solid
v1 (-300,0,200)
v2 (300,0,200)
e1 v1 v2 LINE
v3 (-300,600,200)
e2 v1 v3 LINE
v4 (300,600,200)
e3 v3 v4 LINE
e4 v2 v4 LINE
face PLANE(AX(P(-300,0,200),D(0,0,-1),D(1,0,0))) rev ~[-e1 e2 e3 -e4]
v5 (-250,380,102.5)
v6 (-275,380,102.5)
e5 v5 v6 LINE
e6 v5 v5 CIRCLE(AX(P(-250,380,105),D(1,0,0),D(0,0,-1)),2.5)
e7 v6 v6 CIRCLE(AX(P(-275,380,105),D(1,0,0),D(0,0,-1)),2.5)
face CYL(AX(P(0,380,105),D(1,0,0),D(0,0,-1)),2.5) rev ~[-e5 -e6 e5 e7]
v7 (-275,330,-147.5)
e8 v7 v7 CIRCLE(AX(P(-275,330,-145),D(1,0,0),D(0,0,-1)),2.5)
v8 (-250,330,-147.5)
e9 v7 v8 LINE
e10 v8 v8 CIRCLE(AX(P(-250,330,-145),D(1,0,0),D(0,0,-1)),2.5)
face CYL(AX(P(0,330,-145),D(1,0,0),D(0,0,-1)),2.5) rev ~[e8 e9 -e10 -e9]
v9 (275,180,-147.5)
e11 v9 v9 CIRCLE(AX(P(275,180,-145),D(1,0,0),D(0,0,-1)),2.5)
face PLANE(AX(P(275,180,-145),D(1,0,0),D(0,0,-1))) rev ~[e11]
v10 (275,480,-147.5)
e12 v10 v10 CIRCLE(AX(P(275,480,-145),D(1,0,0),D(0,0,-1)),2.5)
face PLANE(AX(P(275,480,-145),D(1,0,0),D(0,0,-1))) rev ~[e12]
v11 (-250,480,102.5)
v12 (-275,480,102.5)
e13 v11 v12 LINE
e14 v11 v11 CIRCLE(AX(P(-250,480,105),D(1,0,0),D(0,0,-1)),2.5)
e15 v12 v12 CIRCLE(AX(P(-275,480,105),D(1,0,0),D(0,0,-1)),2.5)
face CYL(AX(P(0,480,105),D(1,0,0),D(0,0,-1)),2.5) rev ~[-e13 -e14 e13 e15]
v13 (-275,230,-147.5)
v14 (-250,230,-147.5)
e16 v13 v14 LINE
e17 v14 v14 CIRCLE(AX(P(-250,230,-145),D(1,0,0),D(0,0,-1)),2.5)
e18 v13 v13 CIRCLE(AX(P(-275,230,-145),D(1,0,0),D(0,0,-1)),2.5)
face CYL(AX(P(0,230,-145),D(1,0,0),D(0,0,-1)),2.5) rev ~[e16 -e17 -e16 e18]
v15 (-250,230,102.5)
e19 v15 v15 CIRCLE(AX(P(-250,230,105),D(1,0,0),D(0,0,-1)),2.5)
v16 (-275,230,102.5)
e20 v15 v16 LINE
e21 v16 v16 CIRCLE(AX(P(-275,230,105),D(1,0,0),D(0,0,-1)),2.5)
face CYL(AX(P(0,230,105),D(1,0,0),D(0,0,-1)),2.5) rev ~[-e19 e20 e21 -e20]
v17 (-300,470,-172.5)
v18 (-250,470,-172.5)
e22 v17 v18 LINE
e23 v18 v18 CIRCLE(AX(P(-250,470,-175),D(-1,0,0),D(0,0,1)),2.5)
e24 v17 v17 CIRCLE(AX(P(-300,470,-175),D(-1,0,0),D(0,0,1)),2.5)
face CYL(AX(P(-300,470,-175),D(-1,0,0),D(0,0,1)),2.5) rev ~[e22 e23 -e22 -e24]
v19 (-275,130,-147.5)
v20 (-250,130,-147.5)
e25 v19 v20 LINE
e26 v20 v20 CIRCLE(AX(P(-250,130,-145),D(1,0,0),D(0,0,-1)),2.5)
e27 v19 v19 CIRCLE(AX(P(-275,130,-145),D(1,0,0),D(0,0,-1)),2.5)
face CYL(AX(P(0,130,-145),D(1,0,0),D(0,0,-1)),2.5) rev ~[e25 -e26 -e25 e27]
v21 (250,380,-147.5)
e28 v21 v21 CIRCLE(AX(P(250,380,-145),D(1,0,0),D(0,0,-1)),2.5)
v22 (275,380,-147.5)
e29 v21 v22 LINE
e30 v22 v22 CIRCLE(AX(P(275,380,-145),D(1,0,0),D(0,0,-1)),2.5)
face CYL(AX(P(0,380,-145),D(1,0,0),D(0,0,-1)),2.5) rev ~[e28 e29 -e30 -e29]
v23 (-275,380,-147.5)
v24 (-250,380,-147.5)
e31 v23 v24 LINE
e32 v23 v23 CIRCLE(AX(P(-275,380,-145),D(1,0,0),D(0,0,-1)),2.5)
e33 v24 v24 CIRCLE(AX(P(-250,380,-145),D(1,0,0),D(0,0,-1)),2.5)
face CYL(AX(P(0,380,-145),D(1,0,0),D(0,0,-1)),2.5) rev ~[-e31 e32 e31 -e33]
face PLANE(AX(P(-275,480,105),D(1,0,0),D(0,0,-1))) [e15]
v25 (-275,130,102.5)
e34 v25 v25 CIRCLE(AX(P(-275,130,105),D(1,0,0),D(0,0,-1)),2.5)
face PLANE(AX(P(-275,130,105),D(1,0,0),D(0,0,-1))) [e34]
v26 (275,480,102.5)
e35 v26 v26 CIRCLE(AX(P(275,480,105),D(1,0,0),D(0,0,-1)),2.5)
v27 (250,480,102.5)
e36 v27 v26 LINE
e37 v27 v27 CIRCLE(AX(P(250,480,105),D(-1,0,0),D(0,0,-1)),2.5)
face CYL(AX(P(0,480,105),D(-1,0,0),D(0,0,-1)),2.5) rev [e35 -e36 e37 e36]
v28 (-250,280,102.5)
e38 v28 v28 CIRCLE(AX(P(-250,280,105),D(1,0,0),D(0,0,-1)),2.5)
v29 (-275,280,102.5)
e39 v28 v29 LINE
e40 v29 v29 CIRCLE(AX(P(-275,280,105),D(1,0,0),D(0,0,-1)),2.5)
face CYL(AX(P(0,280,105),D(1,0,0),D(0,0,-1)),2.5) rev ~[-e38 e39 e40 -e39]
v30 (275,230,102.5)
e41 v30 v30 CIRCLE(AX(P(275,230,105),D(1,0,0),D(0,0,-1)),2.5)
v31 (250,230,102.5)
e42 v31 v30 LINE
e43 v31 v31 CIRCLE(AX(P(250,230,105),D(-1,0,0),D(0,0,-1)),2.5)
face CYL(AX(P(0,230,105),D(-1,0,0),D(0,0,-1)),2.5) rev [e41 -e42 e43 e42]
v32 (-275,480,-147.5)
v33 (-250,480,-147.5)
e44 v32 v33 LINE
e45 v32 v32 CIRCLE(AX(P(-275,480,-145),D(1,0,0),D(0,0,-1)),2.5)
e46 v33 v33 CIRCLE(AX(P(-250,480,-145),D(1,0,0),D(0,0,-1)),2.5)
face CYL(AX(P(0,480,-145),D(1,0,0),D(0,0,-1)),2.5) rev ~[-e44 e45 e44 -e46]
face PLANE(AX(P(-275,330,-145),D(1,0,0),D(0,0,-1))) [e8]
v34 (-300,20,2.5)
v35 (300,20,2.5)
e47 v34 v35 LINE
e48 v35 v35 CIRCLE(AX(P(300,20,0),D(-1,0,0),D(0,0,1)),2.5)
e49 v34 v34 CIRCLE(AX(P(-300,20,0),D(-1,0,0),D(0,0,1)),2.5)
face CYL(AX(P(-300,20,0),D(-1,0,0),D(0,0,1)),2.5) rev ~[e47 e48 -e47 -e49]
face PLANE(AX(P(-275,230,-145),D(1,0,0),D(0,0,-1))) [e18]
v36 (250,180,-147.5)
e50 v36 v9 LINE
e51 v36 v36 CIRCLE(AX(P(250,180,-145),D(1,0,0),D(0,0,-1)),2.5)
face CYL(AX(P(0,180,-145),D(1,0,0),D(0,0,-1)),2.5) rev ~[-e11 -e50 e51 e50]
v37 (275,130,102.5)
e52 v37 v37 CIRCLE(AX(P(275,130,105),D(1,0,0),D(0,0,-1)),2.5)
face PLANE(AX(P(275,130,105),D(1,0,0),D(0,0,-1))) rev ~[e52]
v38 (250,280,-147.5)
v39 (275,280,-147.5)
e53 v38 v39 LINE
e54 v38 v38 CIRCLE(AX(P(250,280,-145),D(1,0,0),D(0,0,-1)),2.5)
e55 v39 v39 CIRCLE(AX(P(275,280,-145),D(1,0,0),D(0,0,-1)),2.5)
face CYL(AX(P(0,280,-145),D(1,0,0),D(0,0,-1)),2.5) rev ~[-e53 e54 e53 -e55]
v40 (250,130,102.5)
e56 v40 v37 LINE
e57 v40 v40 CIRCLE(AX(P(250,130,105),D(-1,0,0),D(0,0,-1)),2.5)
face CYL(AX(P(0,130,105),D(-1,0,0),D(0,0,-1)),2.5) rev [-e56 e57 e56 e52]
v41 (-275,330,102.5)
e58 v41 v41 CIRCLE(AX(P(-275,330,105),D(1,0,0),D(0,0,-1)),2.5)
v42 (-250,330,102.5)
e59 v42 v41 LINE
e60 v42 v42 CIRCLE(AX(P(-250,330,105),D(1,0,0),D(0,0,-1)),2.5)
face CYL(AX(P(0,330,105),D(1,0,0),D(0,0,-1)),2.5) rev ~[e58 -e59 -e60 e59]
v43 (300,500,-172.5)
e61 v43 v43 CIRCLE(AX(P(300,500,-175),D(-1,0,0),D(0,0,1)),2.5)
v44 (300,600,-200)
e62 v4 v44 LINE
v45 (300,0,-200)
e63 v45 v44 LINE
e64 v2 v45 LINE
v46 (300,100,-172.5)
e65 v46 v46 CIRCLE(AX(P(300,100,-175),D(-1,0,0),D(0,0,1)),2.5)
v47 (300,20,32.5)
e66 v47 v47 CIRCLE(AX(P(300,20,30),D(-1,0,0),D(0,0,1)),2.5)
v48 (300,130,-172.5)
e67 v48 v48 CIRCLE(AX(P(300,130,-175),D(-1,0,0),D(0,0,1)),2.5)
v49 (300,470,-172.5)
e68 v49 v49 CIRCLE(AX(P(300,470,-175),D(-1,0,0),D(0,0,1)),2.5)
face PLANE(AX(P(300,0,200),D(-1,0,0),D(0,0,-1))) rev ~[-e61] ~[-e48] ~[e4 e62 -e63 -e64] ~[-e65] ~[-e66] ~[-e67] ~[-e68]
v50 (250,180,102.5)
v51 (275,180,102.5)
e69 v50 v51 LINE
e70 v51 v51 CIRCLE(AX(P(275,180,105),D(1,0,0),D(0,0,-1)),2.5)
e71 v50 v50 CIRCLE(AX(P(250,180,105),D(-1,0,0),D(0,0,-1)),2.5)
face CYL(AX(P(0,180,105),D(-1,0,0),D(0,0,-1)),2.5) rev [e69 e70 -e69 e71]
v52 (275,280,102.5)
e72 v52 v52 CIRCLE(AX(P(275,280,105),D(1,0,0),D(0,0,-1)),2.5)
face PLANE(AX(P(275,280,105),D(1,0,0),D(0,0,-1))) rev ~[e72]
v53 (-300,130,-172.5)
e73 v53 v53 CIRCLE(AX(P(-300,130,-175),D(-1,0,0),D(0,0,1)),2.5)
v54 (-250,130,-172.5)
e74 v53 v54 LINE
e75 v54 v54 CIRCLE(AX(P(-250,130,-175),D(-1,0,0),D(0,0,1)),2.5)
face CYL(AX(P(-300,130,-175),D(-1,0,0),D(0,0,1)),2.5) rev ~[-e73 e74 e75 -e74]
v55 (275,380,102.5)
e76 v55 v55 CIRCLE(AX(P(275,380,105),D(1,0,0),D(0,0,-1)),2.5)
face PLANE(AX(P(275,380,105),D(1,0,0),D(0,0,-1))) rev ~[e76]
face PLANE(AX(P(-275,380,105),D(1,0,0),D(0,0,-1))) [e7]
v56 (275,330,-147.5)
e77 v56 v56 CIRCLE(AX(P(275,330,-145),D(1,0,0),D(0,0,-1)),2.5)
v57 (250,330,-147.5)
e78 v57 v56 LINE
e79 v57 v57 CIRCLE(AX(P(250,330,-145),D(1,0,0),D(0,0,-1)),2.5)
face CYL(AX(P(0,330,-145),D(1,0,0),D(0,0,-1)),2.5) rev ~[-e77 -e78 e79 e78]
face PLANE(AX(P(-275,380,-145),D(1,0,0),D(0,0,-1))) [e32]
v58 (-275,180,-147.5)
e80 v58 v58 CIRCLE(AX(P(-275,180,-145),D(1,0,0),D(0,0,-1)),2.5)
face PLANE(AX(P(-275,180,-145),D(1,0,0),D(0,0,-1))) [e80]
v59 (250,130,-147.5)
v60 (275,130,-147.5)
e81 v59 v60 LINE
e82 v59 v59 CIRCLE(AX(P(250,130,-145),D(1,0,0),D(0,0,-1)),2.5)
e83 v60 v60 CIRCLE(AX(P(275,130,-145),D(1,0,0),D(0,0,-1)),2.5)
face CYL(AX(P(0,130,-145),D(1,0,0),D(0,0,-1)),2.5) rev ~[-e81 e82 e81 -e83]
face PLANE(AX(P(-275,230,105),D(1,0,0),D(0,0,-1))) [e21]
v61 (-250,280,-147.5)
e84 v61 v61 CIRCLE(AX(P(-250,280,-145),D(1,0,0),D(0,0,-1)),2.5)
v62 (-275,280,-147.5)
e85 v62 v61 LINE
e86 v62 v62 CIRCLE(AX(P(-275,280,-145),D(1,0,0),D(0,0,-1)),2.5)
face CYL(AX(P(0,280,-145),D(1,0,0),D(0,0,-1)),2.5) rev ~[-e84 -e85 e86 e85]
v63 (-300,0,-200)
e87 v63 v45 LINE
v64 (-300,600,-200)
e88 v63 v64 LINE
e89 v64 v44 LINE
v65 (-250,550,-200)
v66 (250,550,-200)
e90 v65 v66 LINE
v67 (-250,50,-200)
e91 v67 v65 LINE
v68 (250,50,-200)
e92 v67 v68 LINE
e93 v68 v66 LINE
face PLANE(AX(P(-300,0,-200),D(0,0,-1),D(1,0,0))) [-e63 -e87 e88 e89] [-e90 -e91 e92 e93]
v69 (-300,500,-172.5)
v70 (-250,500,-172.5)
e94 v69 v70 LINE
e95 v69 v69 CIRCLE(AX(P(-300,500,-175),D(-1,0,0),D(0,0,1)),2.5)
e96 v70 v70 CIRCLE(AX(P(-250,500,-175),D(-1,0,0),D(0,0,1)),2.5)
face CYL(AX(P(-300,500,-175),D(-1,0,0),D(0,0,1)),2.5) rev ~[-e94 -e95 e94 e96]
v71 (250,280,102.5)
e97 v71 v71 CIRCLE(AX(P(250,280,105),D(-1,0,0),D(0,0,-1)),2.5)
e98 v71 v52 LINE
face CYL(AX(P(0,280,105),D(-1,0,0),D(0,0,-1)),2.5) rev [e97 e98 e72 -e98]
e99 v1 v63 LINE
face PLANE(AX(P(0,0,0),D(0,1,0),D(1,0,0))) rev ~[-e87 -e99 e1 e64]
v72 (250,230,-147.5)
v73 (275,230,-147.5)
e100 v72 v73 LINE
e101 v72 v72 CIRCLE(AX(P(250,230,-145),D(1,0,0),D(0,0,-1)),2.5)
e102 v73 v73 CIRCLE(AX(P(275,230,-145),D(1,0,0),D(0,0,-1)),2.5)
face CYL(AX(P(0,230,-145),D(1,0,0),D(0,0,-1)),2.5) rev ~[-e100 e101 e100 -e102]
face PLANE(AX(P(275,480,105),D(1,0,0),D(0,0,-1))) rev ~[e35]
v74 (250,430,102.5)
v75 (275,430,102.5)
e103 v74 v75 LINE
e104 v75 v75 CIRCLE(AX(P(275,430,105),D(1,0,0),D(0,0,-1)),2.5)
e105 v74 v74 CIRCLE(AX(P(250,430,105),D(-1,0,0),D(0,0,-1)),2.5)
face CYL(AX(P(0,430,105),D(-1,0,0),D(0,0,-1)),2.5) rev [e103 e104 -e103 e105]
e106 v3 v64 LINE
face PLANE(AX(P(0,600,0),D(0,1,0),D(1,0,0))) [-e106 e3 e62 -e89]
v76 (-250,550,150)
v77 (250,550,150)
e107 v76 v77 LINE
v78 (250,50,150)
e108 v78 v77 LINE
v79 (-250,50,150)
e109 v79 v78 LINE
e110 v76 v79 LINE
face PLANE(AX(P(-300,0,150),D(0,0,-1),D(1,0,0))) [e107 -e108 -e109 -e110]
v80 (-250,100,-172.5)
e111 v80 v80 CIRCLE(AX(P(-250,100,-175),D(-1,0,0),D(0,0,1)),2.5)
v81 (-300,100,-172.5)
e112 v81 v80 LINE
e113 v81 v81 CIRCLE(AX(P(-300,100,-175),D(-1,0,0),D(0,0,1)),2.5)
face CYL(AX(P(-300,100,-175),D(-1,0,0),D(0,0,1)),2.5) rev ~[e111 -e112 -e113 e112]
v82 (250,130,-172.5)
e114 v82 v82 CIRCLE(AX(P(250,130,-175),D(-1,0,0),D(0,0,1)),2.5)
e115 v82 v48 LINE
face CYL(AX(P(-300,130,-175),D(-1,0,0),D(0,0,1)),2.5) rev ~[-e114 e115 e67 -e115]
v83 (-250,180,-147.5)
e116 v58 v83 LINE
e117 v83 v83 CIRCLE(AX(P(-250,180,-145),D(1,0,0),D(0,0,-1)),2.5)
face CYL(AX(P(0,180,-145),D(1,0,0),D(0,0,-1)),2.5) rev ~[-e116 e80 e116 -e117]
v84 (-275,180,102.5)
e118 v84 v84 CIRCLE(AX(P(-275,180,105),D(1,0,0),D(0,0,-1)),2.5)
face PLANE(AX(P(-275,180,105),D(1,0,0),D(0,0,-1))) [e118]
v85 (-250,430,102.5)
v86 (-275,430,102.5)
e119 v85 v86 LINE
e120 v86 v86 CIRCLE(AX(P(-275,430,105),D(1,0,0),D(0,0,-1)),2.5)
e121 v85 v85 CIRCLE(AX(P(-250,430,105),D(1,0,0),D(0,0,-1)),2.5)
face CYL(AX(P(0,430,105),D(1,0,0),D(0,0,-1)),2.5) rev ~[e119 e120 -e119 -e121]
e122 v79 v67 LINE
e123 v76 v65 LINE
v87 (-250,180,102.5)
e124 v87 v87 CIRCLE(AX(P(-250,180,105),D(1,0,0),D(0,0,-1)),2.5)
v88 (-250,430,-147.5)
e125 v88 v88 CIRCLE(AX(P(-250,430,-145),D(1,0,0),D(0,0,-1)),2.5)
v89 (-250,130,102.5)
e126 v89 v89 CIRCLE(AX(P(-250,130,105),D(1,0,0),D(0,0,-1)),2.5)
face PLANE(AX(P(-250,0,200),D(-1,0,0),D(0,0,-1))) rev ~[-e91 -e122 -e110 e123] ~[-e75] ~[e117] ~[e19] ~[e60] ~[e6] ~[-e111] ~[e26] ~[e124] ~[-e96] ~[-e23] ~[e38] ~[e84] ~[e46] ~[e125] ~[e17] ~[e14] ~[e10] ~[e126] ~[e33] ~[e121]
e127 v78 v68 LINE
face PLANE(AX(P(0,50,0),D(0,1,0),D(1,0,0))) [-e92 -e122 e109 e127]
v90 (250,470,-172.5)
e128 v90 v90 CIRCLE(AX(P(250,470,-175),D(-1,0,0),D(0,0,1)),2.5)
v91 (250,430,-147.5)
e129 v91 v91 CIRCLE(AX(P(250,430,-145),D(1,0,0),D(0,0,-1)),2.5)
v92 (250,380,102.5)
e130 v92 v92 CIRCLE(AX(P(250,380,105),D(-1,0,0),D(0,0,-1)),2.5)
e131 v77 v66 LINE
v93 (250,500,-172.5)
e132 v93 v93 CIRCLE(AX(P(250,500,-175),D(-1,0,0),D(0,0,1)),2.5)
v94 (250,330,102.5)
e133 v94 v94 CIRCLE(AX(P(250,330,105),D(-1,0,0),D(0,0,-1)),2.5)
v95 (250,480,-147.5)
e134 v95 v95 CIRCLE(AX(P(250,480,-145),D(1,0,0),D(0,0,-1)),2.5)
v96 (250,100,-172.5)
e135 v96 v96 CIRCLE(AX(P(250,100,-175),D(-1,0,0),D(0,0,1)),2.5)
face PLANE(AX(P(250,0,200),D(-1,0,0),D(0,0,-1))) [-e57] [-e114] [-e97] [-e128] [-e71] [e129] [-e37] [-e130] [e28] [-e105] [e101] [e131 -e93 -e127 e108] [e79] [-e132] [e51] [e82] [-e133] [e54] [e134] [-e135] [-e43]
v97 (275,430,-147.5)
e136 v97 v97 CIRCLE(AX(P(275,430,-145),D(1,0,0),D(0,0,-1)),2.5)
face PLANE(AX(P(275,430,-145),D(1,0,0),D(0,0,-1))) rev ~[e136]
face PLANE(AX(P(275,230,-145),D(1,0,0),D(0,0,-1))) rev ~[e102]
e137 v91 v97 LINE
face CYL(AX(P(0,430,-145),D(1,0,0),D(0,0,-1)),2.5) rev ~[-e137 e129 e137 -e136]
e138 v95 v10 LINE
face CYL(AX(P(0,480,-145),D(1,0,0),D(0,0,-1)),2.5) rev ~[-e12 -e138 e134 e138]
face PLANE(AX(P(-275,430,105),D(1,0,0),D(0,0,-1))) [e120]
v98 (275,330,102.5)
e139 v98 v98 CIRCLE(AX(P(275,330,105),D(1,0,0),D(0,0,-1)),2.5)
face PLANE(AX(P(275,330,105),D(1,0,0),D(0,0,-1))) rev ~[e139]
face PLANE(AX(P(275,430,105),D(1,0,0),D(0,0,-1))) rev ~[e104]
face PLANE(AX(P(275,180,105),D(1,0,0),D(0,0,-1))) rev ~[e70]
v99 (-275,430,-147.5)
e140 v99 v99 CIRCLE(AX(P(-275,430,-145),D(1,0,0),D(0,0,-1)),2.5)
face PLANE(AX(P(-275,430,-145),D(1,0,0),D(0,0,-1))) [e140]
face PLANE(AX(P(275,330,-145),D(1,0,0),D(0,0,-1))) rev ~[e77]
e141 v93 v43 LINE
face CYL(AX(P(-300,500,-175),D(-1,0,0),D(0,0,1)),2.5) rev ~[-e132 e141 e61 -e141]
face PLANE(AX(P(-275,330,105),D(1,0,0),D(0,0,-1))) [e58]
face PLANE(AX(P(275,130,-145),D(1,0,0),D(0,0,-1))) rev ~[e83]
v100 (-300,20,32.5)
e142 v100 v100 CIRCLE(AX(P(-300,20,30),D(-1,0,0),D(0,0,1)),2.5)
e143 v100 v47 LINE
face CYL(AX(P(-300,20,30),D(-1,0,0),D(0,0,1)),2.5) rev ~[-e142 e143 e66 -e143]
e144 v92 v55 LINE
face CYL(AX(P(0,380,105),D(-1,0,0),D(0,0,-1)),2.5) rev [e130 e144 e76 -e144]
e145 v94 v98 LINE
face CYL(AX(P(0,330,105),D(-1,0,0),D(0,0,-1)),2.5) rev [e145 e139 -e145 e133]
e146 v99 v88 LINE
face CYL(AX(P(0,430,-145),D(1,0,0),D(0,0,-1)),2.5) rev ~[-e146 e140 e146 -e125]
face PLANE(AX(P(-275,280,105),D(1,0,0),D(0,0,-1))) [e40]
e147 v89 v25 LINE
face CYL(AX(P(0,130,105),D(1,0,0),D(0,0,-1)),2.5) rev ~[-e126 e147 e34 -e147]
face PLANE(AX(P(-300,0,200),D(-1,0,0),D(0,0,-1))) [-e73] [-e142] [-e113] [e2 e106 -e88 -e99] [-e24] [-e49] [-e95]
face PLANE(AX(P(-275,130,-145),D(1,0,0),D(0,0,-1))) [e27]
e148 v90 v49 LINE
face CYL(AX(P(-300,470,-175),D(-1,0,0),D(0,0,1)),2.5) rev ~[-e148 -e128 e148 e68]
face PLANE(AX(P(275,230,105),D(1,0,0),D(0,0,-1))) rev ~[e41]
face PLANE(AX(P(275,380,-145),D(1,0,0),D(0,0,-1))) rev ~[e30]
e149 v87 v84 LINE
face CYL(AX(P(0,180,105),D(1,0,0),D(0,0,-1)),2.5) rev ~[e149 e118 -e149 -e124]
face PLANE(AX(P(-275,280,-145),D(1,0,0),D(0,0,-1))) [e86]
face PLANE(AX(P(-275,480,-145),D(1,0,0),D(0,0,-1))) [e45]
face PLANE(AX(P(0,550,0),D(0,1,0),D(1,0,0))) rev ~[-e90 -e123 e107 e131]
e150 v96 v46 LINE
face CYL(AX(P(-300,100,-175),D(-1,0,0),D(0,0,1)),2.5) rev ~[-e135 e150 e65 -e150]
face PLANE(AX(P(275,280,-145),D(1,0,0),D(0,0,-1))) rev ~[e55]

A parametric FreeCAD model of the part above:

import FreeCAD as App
import Part
import Sketcher
from FreeCAD import Vector
Q = App.Units.Quantity


def faces_at(feature, points):
    """Names of the faces that lie closest to the given points."""
    faces = feature.Shape.Faces
    near = lambda p: min(range(len(faces)), key=lambda i: faces[i].distToShape(Part.Vertex(*p))[0])
    return sorted({f"Face{near(p) + 1}" for p in points})


def add_polygon(sketch, points):
    """Adds a closed chain of lines whose ends are joined by coincident constraints."""
    first, n = sketch.GeometryCount, len(points)
    for a, b in zip(points, points[1:] + points[:1]):
        sketch.addGeometry(Part.LineSegment(App.Vector(*a, 0), App.Vector(*b, 0)), False)
    for i in range(n):
        sketch.addConstraint(Sketcher.Constraint("Coincident", first + i, 2, first + (i + 1) % n, 1))

doc = App.newDocument("Part")
body = doc.addObject("PartDesign::Body", "Body")

# Sketch on XZ plane
sketch1 = body.newObject("Sketcher::SketchObject", "Sketch")
sketch1.AttachmentSupport = (doc.getObject("XZ_Plane"), [""])
sketch1.MapMode = "FlatFace"
add_polygon(sketch1, [(-300, -200), (-300, 200), (300, 200), (300, -200)])  # lines 0-3
sketch1.addConstraint(Sketcher.Constraint("Vertical", 0))
sketch1.addConstraint(Sketcher.Constraint("Horizontal", 1))
sketch1.addConstraint(Sketcher.Constraint("Vertical", 2))
sketch1.addConstraint(Sketcher.Constraint("Horizontal", 3))
sketch1.addConstraint(Sketcher.Constraint("Symmetric", 0, 2, 2, 2, -1, 1))
sketch1.addConstraint(Sketcher.Constraint("DistanceX", 1, 1, 1, 2, Q("600 mm")))
sketch1.addConstraint(Sketcher.Constraint("DistanceY", 0, 1, 0, 2, Q("400 mm")))
pad1 = body.newObject("PartDesign::Pad", "Pad")
pad1.Profile = sketch1
pad1.Length = 600
pad1.Reversed = True
doc.recompute()

thickness = body.newObject("PartDesign::Thickness", "Thickness")
thickness.Base = (pad1, faces_at(pad1, [(0, 300, -200)]))
thickness.Value = 50
thickness.Reversed = True
thickness.Join = "Intersection"

# Sketch on YZ plane
sketch2 = body.newObject("Sketcher::SketchObject", "Sketch001")
sketch2.AttachmentSupport = (doc.getObject("YZ_Plane"), [""])
sketch2.MapMode = "FlatFace"
sketch2.AttachmentOffset = App.Placement(Vector(0, 0, -300), App.Rotation())
sketch2.addGeometry(Part.Circle(Vector(100, -175, 0), Vector(0, 0, 1), 2.5), False)
sketch2.addGeometry(Part.Circle(Vector(130, -175, 0), Vector(0, 0, 1), 2.5), False)
sketch2.addGeometry(Part.Circle(Vector(470, -175, 0), Vector(0, 0, 1), 2.5), False)
sketch2.addGeometry(Part.Circle(Vector(500, -175, 0), Vector(0, 0, 1), 2.5), False)
sketch2.addConstraint(Sketcher.Constraint("Equal", 0, 1))
sketch2.addConstraint(Sketcher.Constraint("Equal", 1, 2))
sketch2.addConstraint(Sketcher.Constraint("Equal", 2, 3))
sketch2.addConstraint(Sketcher.Constraint("Horizontal", 0, 3, 1, 3))
sketch2.addConstraint(Sketcher.Constraint("Horizontal", 1, 3, 2, 3))
sketch2.addConstraint(Sketcher.Constraint("Horizontal", 2, 3, 3, 3))
sketch2.addConstraint(Sketcher.Constraint("Diameter", 0, Q("5 mm")))
sketch2.addConstraint(Sketcher.Constraint("DistanceX", -1, 1, 0, 3, Q("100 mm")))
sketch2.addConstraint(Sketcher.Constraint("DistanceY", 0, 3, -1, 1, Q("175 mm")))
sketch2.addConstraint(Sketcher.Constraint("DistanceX", -1, 1, 1, 3, Q("130 mm")))
sketch2.addConstraint(Sketcher.Constraint("DistanceX", -1, 1, 2, 3, Q("470 mm")))
sketch2.addConstraint(Sketcher.Constraint("DistanceX", -1, 1, 3, 3, Q("500 mm")))
pocket1 = body.newObject("PartDesign::Pocket", "Pocket")
pocket1.Profile = sketch2
pocket1.Type = "ThroughAll"
pocket1.Reversed = True

# Sketch on YZ plane
sketch3 = body.newObject("Sketcher::SketchObject", "Sketch002")
sketch3.AttachmentSupport = (doc.getObject("YZ_Plane"), [""])
sketch3.MapMode = "FlatFace"
sketch3.addGeometry(Part.Circle(Vector(130, 105, 0), Vector(0, 0, 1), 2.5), False)
sketch3.addGeometry(Part.Circle(Vector(130, -145, 0), Vector(0, 0, 1), 2.5), False)
sketch3.addConstraint(Sketcher.Constraint("Equal", 0, 1))
sketch3.addConstraint(Sketcher.Constraint("Vertical", 0, 3, 1, 3))
sketch3.addConstraint(Sketcher.Constraint("Diameter", 0, Q("5 mm")))
sketch3.addConstraint(Sketcher.Constraint("DistanceX", -1, 1, 0, 3, Q("130 mm")))
sketch3.addConstraint(Sketcher.Constraint("DistanceY", -1, 1, 0, 3, Q("105 mm")))
sketch3.addConstraint(Sketcher.Constraint("DistanceY", 1, 3, -1, 1, Q("145 mm")))
pocket2 = body.newObject("PartDesign::Pocket", "Pocket001")
pocket2.Profile = sketch3
pocket2.Length = 550
pocket2.Midplane = True
doc.recompute()

linearpattern = body.newObject("PartDesign::LinearPattern", "LinearPattern")
linearpattern.Originals = [pocket2]
linearpattern.Direction = (doc.getObject("Y_Axis"), [""])
linearpattern.Mode = "offset"
linearpattern.Offset = 50
linearpattern.Occurrences = 8
body.Tip = linearpattern

# Sketch on YZ plane
sketch4 = body.newObject("Sketcher::SketchObject", "Sketch003")
sketch4.AttachmentSupport = (doc.getObject("YZ_Plane"), [""])
sketch4.MapMode = "FlatFace"
sketch4.AttachmentOffset = App.Placement(Vector(0, 0, -300), App.Rotation())
sketch4.addGeometry(Part.Circle(Vector(20, 0, 0), Vector(0, 0, 1), 2.5), False)
sketch4.addGeometry(Part.Circle(Vector(20, 30, 0), Vector(0, 0, 1), 2.5), False)
sketch4.addConstraint(Sketcher.Constraint("Equal", 0, 1))
sketch4.addConstraint(Sketcher.Constraint("PointOnObject", 0, 3, -1))
sketch4.addConstraint(Sketcher.Constraint("Vertical", 0, 3, 1, 3))
sketch4.addConstraint(Sketcher.Constraint("Diameter", 0, Q("5 mm")))
sketch4.addConstraint(Sketcher.Constraint("DistanceX", -1, 1, 0, 3, Q("20 mm")))
sketch4.addConstraint(Sketcher.Constraint("DistanceY", -1, 1, 1, 3, Q("30 mm")))
pocket3 = body.newObject("PartDesign::Pocket", "Pocket002")
pocket3.Profile = sketch4
pocket3.Type = "ThroughAll"
pocket3.Reversed = True

doc.recompute()
